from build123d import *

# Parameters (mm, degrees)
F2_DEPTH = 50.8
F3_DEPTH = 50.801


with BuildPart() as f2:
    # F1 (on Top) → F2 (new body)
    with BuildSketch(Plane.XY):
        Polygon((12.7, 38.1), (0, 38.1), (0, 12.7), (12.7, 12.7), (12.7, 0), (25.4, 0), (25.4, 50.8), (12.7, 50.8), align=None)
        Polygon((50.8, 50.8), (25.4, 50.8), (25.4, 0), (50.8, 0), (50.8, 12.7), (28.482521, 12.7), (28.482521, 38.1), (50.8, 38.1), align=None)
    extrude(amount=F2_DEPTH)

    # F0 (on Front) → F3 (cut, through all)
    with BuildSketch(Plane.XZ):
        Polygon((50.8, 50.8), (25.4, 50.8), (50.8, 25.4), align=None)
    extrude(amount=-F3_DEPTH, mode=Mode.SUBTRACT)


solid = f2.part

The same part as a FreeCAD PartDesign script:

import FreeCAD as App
import Part
import Sketcher
Q = App.Units.Quantity


def add_polygon(sketch, points):
    """Adds a closed chain of lines whose ends are joined by coincident constraints."""
    first, n = sketch.GeometryCount, len(points)
    for a, b in zip(points, points[1:] + points[:1]):
        sketch.addGeometry(Part.LineSegment(App.Vector(*a, 0), App.Vector(*b, 0)), False)
    for i in range(n):
        sketch.addConstraint(Sketcher.Constraint("Coincident", first + i, 2, first + (i + 1) % n, 1))

doc = App.newDocument("Part")
body = doc.addObject("PartDesign::Body", "Body")

# Sketch on XY plane
sketch1 = body.newObject("Sketcher::SketchObject", "Sketch")
sketch1.AttachmentSupport = (doc.getObject("XY_Plane"), [""])
sketch1.MapMode = "FlatFace"
add_polygon(sketch1, [(13, 38), (0, 38), (0, 13), (13, 13), (13, 0), (51, 0), (51, 13), (28, 13), (28, 38), (51, 38), (51, 51), (13, 51)])  # lines 0-11
sketch1.addConstraint([
    Sketcher.Constraint("Horizontal", 0),
    Sketcher.Constraint("Vertical", 1),
    Sketcher.Constraint("Horizontal", 2),
    Sketcher.Constraint("Vertical", 3),
    Sketcher.Constraint("Horizontal", 4),
    Sketcher.Constraint("Vertical", 5),
    Sketcher.Constraint("Horizontal", 6),
    Sketcher.Constraint("Vertical", 7),
    Sketcher.Constraint("Horizontal", 8),
    Sketcher.Constraint("Vertical", 9),
    Sketcher.Constraint("Horizontal", 10),
    Sketcher.Constraint("Vertical", 11),
    Sketcher.Constraint("PointOnObject", 0, 2, -2),
    Sketcher.Constraint("PointOnObject", 3, 2, -1),
    Sketcher.Constraint("Horizontal", 2, 2, 5, 2),
    Sketcher.Constraint("Horizontal", 0, 2, 7, 2),
    Sketcher.Constraint("Vertical", 5, 2, 8, 2),
    Sketcher.Constraint("Vertical", 3, 2, 10, 2),
    Sketcher.Constraint("Equal", 2, 3),
    Sketcher.Constraint("Equal", 5, 9),
    Sketcher.Constraint("DistanceY", 1, 2, 1, 1, Q("1 in")),
    Sketcher.Constraint("DistanceX", 0, 2, 0, 1, Q("0.5 in")),
    Sketcher.Constraint("DistanceX", 4, 1, 4, 2, Q("1.5 in")),
    Sketcher.Constraint("DistanceX", 6, 2, 6, 1, 22.317479),
])
pad1 = body.newObject("PartDesign::Pad", "Pad")
pad1.Profile = sketch1
pad1.Length = Q("2 in")

# Sketch on XZ plane
sketch2 = body.newObject("Sketcher::SketchObject", "Sketch001")
sketch2.AttachmentSupport = (doc.getObject("XZ_Plane"), [""])
sketch2.MapMode = "FlatFace"
add_polygon(sketch2, [(51, 51), (25, 51), (51, 25)])  # lines 0-2
sketch2.addConstraint([
    Sketcher.Constraint("Horizontal", 0),
    Sketcher.Constraint("Vertical", 2),
    Sketcher.Constraint("Equal", 0, 2),
    Sketcher.Constraint("DistanceX", 0, 2, 0, 1, Q("1 in")),
    Sketcher.Constraint("DistanceX", -1, 1, 0, 2, Q("1 in")),
    Sketcher.Constraint("DistanceY", -1, 1, 0, 2, Q("2 in")),
])
pocket1 = body.newObject("PartDesign::Pocket", "Pocket")
pocket1.Profile = sketch2
pocket1.Type = "ThroughAll"

doc.recompute()
